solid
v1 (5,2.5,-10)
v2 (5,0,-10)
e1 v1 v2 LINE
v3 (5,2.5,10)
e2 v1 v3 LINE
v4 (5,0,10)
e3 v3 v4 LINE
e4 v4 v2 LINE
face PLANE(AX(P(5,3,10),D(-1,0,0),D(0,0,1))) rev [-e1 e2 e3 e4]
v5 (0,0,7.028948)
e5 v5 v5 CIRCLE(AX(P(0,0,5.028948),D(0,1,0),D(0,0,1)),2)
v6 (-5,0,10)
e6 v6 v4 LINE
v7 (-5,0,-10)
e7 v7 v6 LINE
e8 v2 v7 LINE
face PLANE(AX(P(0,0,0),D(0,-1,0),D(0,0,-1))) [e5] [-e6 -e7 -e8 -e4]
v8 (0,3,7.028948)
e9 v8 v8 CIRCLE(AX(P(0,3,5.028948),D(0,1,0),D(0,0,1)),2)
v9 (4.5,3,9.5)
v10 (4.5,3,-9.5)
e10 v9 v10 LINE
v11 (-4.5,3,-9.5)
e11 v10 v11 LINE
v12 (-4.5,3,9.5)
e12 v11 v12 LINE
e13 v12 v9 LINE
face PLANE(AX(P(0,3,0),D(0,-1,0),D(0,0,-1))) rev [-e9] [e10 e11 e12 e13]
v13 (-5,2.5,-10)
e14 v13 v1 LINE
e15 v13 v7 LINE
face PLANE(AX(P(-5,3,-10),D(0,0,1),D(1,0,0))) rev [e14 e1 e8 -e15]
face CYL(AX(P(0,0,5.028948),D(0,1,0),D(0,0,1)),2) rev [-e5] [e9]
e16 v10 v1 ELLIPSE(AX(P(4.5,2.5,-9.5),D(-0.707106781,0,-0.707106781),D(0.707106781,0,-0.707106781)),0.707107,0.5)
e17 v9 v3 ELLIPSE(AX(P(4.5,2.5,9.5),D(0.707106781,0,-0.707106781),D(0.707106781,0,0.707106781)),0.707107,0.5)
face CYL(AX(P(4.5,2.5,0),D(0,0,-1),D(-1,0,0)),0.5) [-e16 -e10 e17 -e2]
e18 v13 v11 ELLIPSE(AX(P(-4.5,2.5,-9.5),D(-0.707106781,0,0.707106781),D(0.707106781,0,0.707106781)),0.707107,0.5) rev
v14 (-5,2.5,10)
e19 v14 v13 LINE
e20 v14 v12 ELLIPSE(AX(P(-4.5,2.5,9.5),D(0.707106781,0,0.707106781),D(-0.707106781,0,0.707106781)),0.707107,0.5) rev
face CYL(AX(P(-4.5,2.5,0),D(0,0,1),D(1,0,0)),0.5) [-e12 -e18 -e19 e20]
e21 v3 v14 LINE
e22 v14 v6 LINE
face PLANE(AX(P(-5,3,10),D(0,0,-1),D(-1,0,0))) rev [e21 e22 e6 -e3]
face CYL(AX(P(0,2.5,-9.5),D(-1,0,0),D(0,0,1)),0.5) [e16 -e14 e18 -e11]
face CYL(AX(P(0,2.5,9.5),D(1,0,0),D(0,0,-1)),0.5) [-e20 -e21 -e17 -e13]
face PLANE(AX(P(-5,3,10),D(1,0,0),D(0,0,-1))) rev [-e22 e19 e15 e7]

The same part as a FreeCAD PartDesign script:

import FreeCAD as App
import Part
import Sketcher
Q = App.Units.Quantity


def edges_at(feature, points):
    """Names of the edges that pass closest to the given points."""
    edges = feature.Shape.Edges
    near = lambda p: min(range(len(edges)), key=lambda i: edges[i].distToShape(Part.Vertex(*p))[0])
    return sorted({f"Edge{near(p) + 1}" for p in points})


def add_polygon(sketch, points):
    """Adds a closed chain of lines whose ends are joined by coincident constraints."""
    first, n = sketch.GeometryCount, len(points)
    for a, b in zip(points, points[1:] + points[:1]):
        sketch.addGeometry(Part.LineSegment(App.Vector(*a, 0), App.Vector(*b, 0)), False)
    for i in range(n):
        sketch.addConstraint(Sketcher.Constraint("Coincident", first + i, 2, first + (i + 1) % n, 1))

doc = App.newDocument("Part")
body = doc.addObject("PartDesign::Body", "Body")

# Sketch on XZ plane
sketch1 = body.newObject("Sketcher::SketchObject", "Sketch")
sketch1.AttachmentSupport = (doc.getObject("XZ_Plane"), [""])
sketch1.MapMode = "FlatFace"
add_polygon(sketch1, [(-5, -10), (-5, 10), (5, 10), (5, -10)])  # lines 0-3
sketch1.addConstraint([
    Sketcher.Constraint("Vertical", 0),
    Sketcher.Constraint("Horizontal", 1),
    Sketcher.Constraint("Vertical", 2),
    Sketcher.Constraint("Horizontal", 3),
    Sketcher.Constraint("Symmetric", 0, 2, 2, 2, -1, 1),
    Sketcher.Constraint("DistanceX", 1, 1, 1, 2, Q("10 mm")),
    Sketcher.Constraint("DistanceY", 0, 1, 0, 2, Q("20 mm")),
])
pad1 = body.newObject("PartDesign::Pad", "Pad")
pad1.Profile = sketch1
pad1.Length = 3
pad1.Reversed = True

# Sketch on XZ plane
sketch2 = body.newObject("Sketcher::SketchObject", "Sketch001")
sketch2.AttachmentSupport = (doc.getObject("XZ_Plane"), [""])
sketch2.MapMode = "FlatFace"
sketch2.AttachmentOffset = App.Placement(App.Vector(0, 0, -3), App.Rotation())
sketch2.addGeometry(Part.Circle(App.Vector(0, 5.028948, 0), App.Vector(0, 0, 1), 2), False)
sketch2.addConstraint([
    Sketcher.Constraint("PointOnObject", 0, 3, -2),
    Sketcher.Constraint("Diameter", 0, Q("4 mm")),
    Sketcher.Constraint("DistanceY", -1, 1, 0, 3, Q("5.028948 mm")),
])
pocket1 = body.newObject("PartDesign::Pocket", "Pocket")
pocket1.Profile = sketch2
pocket1.Length = 3
pocket1.Reversed = True
doc.recompute()

fillet = body.newObject("PartDesign::Fillet", "Fillet")
fillet.Base = (pocket1, edges_at(pocket1, [
    (-5, 3, 0),
    (0, 3, 10),
    (5, 3, 0),
    (0, 3, -10),
]))
fillet.Radius = 0.5

doc.recompute()
